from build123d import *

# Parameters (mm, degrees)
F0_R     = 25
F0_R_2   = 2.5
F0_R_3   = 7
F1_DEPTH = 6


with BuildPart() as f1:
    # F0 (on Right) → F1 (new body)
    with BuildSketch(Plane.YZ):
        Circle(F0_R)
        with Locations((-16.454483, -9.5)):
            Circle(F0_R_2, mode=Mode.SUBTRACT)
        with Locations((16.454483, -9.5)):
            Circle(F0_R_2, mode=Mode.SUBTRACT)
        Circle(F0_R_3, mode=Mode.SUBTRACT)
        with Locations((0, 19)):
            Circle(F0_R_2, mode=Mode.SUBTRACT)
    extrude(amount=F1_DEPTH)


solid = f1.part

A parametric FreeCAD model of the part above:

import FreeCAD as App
import Part
import Sketcher
from FreeCAD import Vector

doc = App.newDocument("Part")
body = doc.addObject("PartDesign::Body", "Body")

sketch1 = body.newObject("Sketcher::SketchObject", "Sketch")
sketch1.AttachmentSupport = (doc.getObject("YZ_Plane"), [""])
sketch1.MapMode = "FlatFace"
sketch1.addGeometry([
    Part.Circle(Vector(0, 0, 0), Vector(0, 0, 1), 25),
    Part.Circle(Vector(-16.454483, -9.5, 0), Vector(0, 0, 1), 2.5),
    Part.Circle(Vector(16.454483, -9.5, 0), Vector(0, 0, 1), 2.5),
    Part.Circle(Vector(0, 0, 0), Vector(0, 0, 1), 7),
    Part.Circle(Vector(0, 19, 0), Vector(0, 0, 1), 2.5),
], False)
sketch1.addConstraint([
    Sketcher.Constraint("Coincident", 0, 3, -1, 1),
    Sketcher.Constraint("Coincident", 3, 3, -1, 1),
    Sketcher.Constraint("Equal", 1, 2),
    Sketcher.Constraint("Equal", 2, 4),
    Sketcher.Constraint("Symmetric", 1, 3, 2, 3, -2),
    Sketcher.Constraint("PointOnObject", 4, 3, -2),
    Sketcher.Constraint("Diameter", 0, 50.0),
    Sketcher.Constraint("Diameter", 1, 5.0),
    Sketcher.Constraint("Diameter", 3, 14.0),
    Sketcher.Constraint("DistanceY", -1, 1, 4, 3, 19.0),
    Sketcher.Constraint("DistanceY", 1, 3, -1, 1, 9.5),
    Sketcher.Constraint("DistanceX", 1, 3, -1, 1, 16.454483),
])
pad1 = body.newObject("PartDesign::Pad", "Pad")
pad1.Profile = sketch1
pad1.Length = 6

doc.recompute()
